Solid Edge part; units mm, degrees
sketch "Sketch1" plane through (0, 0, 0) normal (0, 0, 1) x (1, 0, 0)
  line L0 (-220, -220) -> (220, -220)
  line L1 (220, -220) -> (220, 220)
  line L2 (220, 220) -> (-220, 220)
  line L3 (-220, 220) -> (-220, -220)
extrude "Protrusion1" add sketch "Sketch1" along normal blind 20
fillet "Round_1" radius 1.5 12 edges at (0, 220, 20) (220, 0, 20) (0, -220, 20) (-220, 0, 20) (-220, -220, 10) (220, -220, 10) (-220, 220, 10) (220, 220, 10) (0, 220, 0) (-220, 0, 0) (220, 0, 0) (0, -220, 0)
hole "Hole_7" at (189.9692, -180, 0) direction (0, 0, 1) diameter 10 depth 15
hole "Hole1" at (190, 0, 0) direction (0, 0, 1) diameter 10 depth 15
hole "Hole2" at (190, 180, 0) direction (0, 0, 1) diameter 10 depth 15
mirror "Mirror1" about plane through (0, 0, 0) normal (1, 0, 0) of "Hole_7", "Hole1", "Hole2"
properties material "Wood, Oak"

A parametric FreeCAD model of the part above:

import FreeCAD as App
import Part
import Sketcher


def add_polygon(sketch, points):
    """Adds a closed chain of lines whose ends are joined by coincident constraints."""
    first, n = sketch.GeometryCount, len(points)
    for a, b in zip(points, points[1:] + points[:1]):
        sketch.addGeometry(Part.LineSegment(App.Vector(*a, 0), App.Vector(*b, 0)), False)
    for i in range(n):
        sketch.addConstraint(Sketcher.Constraint("Coincident", first + i, 2, first + (i + 1) % n, 1))

doc = App.newDocument("Part")
body = doc.addObject("PartDesign::Body", "Body")

sketch1 = body.newObject("Sketcher::SketchObject", "Sketch")
sketch1.AttachmentSupport = (doc.getObject("XY_Plane"), [""])
sketch1.MapMode = "FlatFace"
add_polygon(sketch1, [(-220, 220), (-220, -220), (220, -220), (220, 220)])
sketch1.addConstraint([
    Sketcher.Constraint("Vertical", 0),
    Sketcher.Constraint("Horizontal", 1),
    Sketcher.Constraint("Vertical", 2),
    Sketcher.Constraint("Horizontal", 3),
    Sketcher.Constraint("Symmetric", 0, 2, 2, 2, -1, 1),
    Sketcher.Constraint("Equal", 3, 0),
    Sketcher.Constraint("DistanceX", 1, 1, 1, 2, 440.0),
])
pad1 = body.newObject("PartDesign::Pad", "Pad")
pad1.Profile = sketch1
pad1.Length = 20
doc.recompute()

fillet = body.newObject("PartDesign::Fillet", "Fillet")
fillet.Base = (pad1, ["Edge1"])
fillet.UseAllEdges = True
fillet.Radius = 1.5

sketch2 = body.newObject("Sketcher::SketchObject", "Sketch001")
sketch2.AttachmentSupport = (doc.getObject("XY_Plane"), [""])
sketch2.MapMode = "FlatFace"
sketch2.addGeometry(Part.Circle(App.Vector(190, -180, 0), App.Vector(0, 0, 1), 5), False)
sketch2.addConstraint([
    Sketcher.Constraint("Diameter", 0, 10.0),
    Sketcher.Constraint("DistanceY", 0, 3, -1, 1, 180.0),
    Sketcher.Constraint("DistanceX", -1, 1, 0, 3, 189.9692),
])
doc.recompute()
hole = body.newObject("PartDesign::Hole", "Hole")
hole.Profile = sketch2
hole.ThreadType = "None"
hole.Diameter = 10
hole.DepthType = "Dimension"
hole.Depth = 15
hole.DrillPoint = "Flat"
hole.Reversed = True

sketch3 = body.newObject("Sketcher::SketchObject", "Sketch002")
sketch3.AttachmentSupport = (doc.getObject("XY_Plane"), [""])
sketch3.MapMode = "FlatFace"
sketch3.addGeometry(Part.Circle(App.Vector(190, 0, 0), App.Vector(0, 0, 1), 5), False)
sketch3.addConstraint([
    Sketcher.Constraint("PointOnObject", 0, 3, -1),
    Sketcher.Constraint("Diameter", 0, 10.0),
    Sketcher.Constraint("DistanceX", -1, 1, 0, 3, 190.0),
])
doc.recompute()
hole2 = body.newObject("PartDesign::Hole", "Hole001")
hole2.Profile = sketch3
hole2.ThreadType = "None"
hole2.Diameter = 10
hole2.DepthType = "Dimension"
hole2.Depth = 15
hole2.DrillPoint = "Flat"
hole2.Reversed = True

sketch4 = body.newObject("Sketcher::SketchObject", "Sketch003")
sketch4.AttachmentSupport = (doc.getObject("XY_Plane"), [""])
sketch4.MapMode = "FlatFace"
sketch4.addGeometry(Part.Circle(App.Vector(190, 180, 0), App.Vector(0, 0, 1), 5), False)
sketch4.addConstraint([
    Sketcher.Constraint("Diameter", 0, 10.0),
    Sketcher.Constraint("DistanceX", -1, 1, 0, 3, 190.0),
    Sketcher.Constraint("DistanceY", -1, 1, 0, 3, 180.0),
])
doc.recompute()
hole3 = body.newObject("PartDesign::Hole", "Hole002")
hole3.Profile = sketch4
hole3.ThreadType = "None"
hole3.Diameter = 10
hole3.DepthType = "Dimension"
hole3.Depth = 15
hole3.DrillPoint = "Flat"
hole3.Reversed = True
doc.recompute()

mirrored = body.newObject("PartDesign::Mirrored", "Mirrored")
mirrored.Originals = [hole, hole2, hole3]
mirrored.MirrorPlane = (doc.getObject("YZ_Plane"), [""])
body.Tip = mirrored

doc.recompute()
